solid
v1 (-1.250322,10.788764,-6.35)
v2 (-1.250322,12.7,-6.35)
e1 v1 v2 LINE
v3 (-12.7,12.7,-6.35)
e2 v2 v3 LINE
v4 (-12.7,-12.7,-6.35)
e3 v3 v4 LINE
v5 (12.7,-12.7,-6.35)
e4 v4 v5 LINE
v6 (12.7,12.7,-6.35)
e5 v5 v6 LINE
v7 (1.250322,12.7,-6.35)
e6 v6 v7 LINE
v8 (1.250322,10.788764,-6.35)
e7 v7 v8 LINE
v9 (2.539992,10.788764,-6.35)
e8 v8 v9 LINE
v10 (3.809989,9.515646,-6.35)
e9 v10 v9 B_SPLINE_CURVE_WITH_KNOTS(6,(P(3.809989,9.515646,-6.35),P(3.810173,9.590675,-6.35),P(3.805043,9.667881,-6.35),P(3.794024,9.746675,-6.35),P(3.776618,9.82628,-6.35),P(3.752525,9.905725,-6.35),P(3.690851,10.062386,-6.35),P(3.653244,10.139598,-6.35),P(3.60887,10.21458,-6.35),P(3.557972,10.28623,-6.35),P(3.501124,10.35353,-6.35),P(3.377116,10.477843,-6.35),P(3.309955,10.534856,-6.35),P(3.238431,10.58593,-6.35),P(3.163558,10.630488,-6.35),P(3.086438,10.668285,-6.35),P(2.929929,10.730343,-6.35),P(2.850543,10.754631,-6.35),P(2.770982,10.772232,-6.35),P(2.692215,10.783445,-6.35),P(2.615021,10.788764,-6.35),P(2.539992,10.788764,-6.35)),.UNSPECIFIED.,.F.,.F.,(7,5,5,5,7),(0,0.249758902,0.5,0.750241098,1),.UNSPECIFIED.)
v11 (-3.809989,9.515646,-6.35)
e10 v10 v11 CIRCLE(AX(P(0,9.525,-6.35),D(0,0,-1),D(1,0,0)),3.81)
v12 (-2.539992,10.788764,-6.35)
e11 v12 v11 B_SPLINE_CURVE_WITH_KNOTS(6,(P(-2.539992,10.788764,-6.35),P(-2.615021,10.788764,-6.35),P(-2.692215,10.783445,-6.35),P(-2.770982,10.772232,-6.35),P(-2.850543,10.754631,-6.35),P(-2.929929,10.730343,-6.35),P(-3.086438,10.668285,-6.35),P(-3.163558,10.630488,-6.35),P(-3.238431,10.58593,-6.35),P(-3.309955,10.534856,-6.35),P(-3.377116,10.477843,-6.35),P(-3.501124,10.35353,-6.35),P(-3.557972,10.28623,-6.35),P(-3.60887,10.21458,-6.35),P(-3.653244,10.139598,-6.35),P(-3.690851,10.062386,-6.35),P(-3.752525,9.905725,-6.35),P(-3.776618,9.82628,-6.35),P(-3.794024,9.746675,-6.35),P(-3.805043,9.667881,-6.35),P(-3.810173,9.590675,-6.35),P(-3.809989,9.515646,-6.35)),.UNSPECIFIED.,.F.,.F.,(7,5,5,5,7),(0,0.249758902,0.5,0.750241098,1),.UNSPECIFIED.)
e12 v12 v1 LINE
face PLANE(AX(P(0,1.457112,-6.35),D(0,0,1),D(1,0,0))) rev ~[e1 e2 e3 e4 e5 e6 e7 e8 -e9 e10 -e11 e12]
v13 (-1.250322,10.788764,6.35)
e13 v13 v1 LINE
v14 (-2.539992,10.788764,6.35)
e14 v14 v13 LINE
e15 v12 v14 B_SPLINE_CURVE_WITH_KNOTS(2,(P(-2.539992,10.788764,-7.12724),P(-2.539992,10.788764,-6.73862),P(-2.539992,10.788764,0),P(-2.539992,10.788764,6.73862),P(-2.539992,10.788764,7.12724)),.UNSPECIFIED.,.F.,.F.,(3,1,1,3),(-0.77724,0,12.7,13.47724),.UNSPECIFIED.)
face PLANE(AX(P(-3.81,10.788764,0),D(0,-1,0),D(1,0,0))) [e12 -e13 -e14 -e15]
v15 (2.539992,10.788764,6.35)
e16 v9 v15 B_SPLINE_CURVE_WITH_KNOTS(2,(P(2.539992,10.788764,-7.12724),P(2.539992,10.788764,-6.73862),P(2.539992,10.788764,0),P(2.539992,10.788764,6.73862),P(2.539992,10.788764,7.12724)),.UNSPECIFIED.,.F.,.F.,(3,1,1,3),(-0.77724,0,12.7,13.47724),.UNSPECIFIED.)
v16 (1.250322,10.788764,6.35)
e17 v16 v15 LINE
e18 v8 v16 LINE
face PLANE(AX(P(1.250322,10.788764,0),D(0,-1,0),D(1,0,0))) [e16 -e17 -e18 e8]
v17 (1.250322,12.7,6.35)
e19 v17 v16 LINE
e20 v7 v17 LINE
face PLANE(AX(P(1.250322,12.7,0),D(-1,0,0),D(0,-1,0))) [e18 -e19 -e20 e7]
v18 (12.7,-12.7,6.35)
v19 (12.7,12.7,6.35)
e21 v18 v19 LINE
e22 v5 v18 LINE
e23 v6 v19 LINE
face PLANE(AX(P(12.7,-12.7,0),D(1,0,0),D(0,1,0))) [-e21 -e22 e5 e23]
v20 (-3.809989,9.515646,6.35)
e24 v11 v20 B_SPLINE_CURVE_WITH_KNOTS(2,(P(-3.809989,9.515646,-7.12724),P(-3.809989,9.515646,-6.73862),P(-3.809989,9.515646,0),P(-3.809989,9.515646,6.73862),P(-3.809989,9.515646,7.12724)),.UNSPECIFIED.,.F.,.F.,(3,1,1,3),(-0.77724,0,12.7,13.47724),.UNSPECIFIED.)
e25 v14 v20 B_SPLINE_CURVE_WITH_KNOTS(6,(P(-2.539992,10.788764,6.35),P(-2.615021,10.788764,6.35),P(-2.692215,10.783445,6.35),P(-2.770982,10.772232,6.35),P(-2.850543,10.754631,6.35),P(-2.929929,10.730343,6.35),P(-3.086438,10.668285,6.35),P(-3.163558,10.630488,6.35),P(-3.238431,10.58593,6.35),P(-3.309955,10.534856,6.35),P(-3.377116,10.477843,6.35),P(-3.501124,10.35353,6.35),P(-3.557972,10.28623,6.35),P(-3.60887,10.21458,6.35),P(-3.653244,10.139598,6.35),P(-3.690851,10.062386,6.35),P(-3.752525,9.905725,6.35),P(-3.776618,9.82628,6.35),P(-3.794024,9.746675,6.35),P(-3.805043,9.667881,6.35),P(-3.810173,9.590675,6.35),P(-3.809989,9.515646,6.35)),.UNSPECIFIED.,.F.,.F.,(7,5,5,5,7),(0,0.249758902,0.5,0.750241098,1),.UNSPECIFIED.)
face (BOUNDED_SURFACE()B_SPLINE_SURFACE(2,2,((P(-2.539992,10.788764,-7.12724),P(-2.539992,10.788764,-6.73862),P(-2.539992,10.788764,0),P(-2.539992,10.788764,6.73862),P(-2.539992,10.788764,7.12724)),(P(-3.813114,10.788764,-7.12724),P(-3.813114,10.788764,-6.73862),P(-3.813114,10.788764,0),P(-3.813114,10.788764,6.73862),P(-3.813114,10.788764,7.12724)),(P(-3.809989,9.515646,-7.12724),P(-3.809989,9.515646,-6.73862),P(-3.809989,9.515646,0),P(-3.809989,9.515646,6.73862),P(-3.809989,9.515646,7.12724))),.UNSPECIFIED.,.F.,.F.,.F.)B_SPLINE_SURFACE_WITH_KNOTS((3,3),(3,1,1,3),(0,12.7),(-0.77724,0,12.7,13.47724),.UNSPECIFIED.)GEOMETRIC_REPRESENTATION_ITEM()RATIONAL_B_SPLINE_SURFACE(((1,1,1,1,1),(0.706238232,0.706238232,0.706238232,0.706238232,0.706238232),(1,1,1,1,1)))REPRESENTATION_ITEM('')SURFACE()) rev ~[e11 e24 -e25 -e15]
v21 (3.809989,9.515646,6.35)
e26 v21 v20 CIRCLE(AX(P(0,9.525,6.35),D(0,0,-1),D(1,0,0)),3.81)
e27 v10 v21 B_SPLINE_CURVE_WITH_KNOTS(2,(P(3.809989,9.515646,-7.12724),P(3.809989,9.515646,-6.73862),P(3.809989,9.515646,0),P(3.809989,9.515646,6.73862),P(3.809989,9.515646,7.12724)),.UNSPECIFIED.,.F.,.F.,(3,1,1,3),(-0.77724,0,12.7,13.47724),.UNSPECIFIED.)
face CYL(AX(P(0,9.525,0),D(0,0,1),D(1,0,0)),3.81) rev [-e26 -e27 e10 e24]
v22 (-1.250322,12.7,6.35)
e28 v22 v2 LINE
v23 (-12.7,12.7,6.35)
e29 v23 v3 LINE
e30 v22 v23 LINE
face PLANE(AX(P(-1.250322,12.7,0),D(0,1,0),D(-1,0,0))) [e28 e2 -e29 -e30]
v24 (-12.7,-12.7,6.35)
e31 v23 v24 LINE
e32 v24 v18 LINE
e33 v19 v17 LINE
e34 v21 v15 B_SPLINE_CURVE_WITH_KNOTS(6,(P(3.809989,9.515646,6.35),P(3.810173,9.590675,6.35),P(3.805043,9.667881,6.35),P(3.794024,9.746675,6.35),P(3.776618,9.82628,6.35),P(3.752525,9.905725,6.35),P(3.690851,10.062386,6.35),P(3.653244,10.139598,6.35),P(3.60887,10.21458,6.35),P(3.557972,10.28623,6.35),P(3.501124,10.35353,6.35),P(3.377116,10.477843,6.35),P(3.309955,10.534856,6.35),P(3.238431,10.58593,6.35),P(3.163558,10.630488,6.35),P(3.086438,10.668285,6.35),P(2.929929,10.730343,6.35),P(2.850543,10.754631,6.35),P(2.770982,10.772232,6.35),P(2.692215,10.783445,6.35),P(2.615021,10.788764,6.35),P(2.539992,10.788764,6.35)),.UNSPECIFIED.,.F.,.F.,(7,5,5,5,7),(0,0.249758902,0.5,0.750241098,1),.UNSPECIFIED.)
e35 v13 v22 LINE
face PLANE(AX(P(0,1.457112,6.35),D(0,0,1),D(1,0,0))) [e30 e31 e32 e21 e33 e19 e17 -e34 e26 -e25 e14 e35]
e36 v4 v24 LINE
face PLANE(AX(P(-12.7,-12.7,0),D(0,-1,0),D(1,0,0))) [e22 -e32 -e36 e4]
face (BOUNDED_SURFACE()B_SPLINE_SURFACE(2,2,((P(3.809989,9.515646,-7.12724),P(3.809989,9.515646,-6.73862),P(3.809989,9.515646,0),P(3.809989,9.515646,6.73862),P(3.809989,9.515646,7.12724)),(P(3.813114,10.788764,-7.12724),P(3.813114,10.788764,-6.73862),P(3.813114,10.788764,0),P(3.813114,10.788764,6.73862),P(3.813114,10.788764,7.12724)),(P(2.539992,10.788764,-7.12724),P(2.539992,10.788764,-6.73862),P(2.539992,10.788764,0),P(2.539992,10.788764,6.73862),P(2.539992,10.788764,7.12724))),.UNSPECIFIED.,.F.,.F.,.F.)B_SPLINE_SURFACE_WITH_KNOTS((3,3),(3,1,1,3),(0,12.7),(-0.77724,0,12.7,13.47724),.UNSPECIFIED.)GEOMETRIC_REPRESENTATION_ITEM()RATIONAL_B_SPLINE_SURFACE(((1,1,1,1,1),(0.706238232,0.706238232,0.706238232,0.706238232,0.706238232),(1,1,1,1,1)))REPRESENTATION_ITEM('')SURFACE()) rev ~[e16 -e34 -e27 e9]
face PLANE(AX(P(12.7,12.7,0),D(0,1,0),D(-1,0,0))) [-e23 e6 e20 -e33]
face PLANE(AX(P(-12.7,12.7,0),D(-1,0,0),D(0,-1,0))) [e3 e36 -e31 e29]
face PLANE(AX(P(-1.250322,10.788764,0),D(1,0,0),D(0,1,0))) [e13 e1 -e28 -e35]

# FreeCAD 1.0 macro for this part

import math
import FreeCAD as App
import Part
import Sketcher

V = App.Vector
Q = App.Units.Quantity


def edges_at(feature, points):
    """Names of the edges that pass closest to the given points."""
    edges = feature.Shape.Edges
    near = lambda p: min(range(len(edges)), key=lambda i: edges[i].distToShape(Part.Vertex(*p))[0])
    return sorted({f"Edge{near(p) + 1}" for p in points})

doc = App.newDocument("Part")
params = doc.addObject("Spreadsheet::Sheet", "Params")
for row, (alias, value) in enumerate([
    ("sketch1_width", "1 in"),
    ("sketch1_radius", "0.15 in"),
    ("pad1_length", "0.5 in"),
    ("fillet_radius", "0.05 in"),
], start=1):
    params.set(f"A{row}", alias)
    params.set(f"B{row}", "=" + value)
    params.setAlias(f"B{row}", alias)

body = doc.addObject("PartDesign::Body", "Body")

sketch1 = body.newObject("Sketcher::SketchObject", "Sketch")
sketch1.AttachmentSupport = (doc.getObject("XY_Plane"), [""])
sketch1.MapMode = "FlatFace"
sketch1.addGeometry([
    Part.LineSegment(V(-12.7, 12.7, 0), V(-12.7, -12.7, 0)),
    Part.LineSegment(V(-12.7, -12.7, 0), V(12.7, -12.7, 0)),
    Part.LineSegment(V(12.7, -12.7, 0), V(12.7, 12.7, 0)),
    Part.LineSegment(V(12.7, 12.7, 0), V(1.3, 12.7, 0)),
    Part.LineSegment(V(1.3, 12.7, 0), V(1.3, 10.8, 0)),
    Part.LineSegment(V(1.3, 10.8, 0), V(3.8, 10.8, 0)),
    Part.LineSegment(V(3.8, 10.8, 0), V(3.8, 9.5, 0)),
    Part.ArcOfCircle(Part.Circle(V(0, 9.5, 0), V(0, 0, 1), 3.8), math.radians(180), math.radians(360)),
    Part.LineSegment(V(-3.8, 9.5, 0), V(-3.8, 10.8, 0)),
    Part.LineSegment(V(-3.8, 10.8, 0), V(-1.3, 10.8, 0)),
    Part.LineSegment(V(-1.3, 10.8, 0), V(-1.3, 12.7, 0)),
    Part.LineSegment(V(-1.3, 12.7, 0), V(-12.7, 12.7, 0)),
], False)
sketch1.addConstraint([
    Sketcher.Constraint("Coincident", 0, 2, 1, 1),
    Sketcher.Constraint("Coincident", 1, 2, 2, 1),
    Sketcher.Constraint("Coincident", 2, 2, 3, 1),
    Sketcher.Constraint("Coincident", 3, 2, 4, 1),
    Sketcher.Constraint("Coincident", 4, 2, 5, 1),
    Sketcher.Constraint("Coincident", 5, 2, 6, 1),
    Sketcher.Constraint("Tangent", 6, 2, 7, 2),
    Sketcher.Constraint("Tangent", 7, 1, 8, 1),
    Sketcher.Constraint("Coincident", 8, 2, 9, 1),
    Sketcher.Constraint("Coincident", 9, 2, 10, 1),
    Sketcher.Constraint("Coincident", 10, 2, 11, 1),
    Sketcher.Constraint("Coincident", 11, 2, 0, 1),
    Sketcher.Constraint("Vertical", 0),
    Sketcher.Constraint("Horizontal", 1),
    Sketcher.Constraint("Vertical", 2),
    Sketcher.Constraint("Horizontal", 3),
    Sketcher.Constraint("Vertical", 4),
    Sketcher.Constraint("Horizontal", 5),
    Sketcher.Constraint("Vertical", 6),
    Sketcher.Constraint("Vertical", 8),
    Sketcher.Constraint("Horizontal", 9),
    Sketcher.Constraint("Vertical", 10),
    Sketcher.Constraint("Horizontal", 11),
    Sketcher.Constraint("Symmetric", 0, 2, 2, 2, -1, 1),
    Sketcher.Constraint("Symmetric", 5, 2, 8, 2, -2),
    Sketcher.Constraint("Symmetric", 3, 2, 10, 2, -2),
    Sketcher.Constraint("Equal", 1, 0),
    Sketcher.Constraint("DistanceX", 1, 1, 1, 2, Q("1 in")),
    Sketcher.Constraint("Radius", 7, Q("0.15 in")),
    Sketcher.Constraint("DistanceY", -1, 1, 7, 3, Q("0.375 in")),
    Sketcher.Constraint("DistanceX", 3, 2, 3, 1, Q("11.449678 mm")),
    Sketcher.Constraint("DistanceY", 4, 2, 4, 1, Q("1.911236 mm")),
])
sketch1.setExpression("Constraints[27]", "Params.sketch1_width")
sketch1.setExpression("Constraints[28]", "Params.sketch1_radius")
pad1 = body.newObject("PartDesign::Pad", "Pad")
pad1.Profile = sketch1
pad1.setExpression("Length", "Params.pad1_length")
pad1.Midplane = True
doc.recompute()

fillet = body.newObject("PartDesign::Fillet", "Fillet")
fillet.Base = (pad1, edges_at(pad1, [(-3.81, 10.789, 0), (3.81, 10.789, 0)]))
fillet.setExpression("Radius", "Params.fillet_radius")

doc.recompute()
